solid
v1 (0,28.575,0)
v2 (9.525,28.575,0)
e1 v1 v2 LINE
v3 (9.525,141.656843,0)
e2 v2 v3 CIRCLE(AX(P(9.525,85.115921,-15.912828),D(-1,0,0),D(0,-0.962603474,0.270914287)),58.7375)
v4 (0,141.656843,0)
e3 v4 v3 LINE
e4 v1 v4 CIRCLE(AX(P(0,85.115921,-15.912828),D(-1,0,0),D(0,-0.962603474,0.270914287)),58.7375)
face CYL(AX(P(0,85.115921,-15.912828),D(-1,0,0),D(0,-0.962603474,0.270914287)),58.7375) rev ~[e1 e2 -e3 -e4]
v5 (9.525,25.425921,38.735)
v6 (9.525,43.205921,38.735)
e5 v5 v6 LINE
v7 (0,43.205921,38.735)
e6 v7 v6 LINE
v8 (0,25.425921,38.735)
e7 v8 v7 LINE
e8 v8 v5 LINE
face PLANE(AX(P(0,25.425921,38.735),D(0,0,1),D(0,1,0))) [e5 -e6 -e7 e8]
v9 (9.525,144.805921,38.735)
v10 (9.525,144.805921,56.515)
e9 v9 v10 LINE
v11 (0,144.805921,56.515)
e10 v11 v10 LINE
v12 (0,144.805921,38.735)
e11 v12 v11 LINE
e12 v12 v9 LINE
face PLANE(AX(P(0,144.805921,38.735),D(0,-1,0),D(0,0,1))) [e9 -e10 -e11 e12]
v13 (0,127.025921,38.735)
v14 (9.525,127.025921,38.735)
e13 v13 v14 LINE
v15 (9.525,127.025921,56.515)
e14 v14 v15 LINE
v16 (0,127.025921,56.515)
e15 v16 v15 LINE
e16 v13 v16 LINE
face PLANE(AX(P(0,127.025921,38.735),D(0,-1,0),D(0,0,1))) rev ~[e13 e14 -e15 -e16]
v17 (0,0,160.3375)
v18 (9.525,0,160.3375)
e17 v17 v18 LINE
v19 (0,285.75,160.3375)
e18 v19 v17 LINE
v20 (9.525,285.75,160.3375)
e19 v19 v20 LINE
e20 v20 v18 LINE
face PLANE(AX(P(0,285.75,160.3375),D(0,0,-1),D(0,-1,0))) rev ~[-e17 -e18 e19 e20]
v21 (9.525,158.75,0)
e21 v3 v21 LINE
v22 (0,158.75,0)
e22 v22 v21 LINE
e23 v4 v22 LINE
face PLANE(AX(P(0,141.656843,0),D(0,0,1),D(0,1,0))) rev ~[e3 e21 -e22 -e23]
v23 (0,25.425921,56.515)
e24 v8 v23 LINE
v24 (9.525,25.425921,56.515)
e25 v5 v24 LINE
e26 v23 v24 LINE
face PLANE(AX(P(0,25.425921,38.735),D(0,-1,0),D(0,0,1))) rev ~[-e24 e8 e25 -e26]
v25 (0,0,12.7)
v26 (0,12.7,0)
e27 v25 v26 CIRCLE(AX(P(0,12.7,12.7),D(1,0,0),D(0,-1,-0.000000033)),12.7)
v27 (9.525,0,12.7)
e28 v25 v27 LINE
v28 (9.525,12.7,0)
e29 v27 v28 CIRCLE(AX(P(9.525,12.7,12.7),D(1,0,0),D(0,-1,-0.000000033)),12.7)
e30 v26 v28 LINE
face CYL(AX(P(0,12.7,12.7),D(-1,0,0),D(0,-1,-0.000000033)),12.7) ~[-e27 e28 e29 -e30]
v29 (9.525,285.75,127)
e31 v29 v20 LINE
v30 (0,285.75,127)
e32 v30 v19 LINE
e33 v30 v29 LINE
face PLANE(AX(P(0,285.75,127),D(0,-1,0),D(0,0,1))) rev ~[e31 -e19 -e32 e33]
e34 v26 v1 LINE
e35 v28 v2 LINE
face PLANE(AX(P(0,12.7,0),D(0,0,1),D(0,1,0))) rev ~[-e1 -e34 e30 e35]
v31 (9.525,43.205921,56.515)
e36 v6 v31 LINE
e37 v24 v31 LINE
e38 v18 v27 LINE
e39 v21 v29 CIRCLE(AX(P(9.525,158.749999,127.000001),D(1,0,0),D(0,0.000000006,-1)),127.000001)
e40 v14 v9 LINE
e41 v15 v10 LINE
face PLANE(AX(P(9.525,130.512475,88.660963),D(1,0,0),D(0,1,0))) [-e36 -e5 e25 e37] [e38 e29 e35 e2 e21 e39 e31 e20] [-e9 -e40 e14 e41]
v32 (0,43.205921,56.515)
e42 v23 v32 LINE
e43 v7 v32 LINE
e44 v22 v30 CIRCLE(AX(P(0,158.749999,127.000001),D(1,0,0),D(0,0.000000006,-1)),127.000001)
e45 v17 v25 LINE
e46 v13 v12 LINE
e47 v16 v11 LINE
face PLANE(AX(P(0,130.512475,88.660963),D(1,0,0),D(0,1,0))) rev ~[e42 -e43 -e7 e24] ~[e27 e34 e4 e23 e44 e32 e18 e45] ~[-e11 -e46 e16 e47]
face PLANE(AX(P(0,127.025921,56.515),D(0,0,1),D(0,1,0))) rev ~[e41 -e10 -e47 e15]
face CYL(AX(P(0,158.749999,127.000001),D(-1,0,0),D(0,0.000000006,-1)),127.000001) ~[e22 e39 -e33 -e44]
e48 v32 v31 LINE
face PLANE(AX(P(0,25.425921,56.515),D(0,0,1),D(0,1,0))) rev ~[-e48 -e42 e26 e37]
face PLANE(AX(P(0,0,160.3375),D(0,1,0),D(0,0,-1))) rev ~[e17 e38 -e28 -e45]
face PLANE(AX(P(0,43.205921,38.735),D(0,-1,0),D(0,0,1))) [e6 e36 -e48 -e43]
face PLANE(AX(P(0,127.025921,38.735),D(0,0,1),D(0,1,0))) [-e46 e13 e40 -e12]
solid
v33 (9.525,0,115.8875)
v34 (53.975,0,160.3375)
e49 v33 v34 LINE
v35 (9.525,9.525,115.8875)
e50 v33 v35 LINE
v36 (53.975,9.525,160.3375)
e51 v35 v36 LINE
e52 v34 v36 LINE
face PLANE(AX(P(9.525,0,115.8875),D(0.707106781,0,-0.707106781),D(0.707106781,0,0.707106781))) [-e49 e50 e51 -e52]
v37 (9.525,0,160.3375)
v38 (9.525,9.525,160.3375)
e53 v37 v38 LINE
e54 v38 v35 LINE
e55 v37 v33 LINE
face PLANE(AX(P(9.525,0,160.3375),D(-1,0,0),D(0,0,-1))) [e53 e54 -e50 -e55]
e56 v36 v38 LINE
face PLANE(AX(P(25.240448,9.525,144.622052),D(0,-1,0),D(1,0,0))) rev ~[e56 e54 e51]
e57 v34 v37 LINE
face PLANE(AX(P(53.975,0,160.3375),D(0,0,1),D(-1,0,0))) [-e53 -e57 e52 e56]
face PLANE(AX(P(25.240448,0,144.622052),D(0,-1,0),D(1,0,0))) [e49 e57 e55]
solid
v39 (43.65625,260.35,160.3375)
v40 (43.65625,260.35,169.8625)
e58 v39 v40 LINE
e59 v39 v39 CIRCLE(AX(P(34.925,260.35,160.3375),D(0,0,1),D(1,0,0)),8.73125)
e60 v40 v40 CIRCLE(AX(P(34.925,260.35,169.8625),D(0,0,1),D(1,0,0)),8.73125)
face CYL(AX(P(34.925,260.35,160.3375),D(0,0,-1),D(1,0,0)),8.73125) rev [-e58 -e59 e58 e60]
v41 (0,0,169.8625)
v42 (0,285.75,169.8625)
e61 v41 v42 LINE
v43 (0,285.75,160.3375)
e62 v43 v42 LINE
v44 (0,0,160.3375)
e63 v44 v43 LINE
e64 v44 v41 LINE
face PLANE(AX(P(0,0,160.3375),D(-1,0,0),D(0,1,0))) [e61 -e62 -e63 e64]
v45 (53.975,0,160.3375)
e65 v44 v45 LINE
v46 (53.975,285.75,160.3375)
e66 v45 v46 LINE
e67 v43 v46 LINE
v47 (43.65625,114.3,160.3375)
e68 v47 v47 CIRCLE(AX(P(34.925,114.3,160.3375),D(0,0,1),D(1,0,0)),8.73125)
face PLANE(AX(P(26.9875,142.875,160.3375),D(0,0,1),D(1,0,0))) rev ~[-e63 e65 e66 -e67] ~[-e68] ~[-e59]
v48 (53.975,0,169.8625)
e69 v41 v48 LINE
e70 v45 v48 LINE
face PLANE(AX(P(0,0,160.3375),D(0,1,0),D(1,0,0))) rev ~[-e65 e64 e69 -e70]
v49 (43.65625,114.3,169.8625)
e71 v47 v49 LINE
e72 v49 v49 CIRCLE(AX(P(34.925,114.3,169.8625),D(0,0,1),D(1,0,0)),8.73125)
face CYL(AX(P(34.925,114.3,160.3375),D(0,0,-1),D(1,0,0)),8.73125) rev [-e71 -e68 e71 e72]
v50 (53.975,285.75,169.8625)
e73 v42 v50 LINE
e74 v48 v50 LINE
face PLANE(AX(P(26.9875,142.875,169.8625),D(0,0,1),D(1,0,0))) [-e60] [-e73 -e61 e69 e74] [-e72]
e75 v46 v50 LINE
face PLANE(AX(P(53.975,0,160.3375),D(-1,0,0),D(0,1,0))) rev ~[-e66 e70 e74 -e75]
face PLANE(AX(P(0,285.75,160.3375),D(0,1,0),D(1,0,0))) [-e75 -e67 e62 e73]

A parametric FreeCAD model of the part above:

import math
import FreeCAD as App
import Part
import Sketcher
Q = App.Units.Quantity


def add_polygon(sketch, points):
    """Adds a closed chain of lines whose ends are joined by coincident constraints."""
    first, n = sketch.GeometryCount, len(points)
    for a, b in zip(points, points[1:] + points[:1]):
        sketch.addGeometry(Part.LineSegment(App.Vector(*a, 0), App.Vector(*b, 0)), False)
    for i in range(n):
        sketch.addConstraint(Sketcher.Constraint("Coincident", first + i, 2, first + (i + 1) % n, 1))

doc = App.newDocument("Part")
body = doc.addObject("PartDesign::Body", "Body")

sketch1 = doc.addObject("Sketcher::SketchObject", "Sketch")
body.addObject(sketch1)
sketch1.AttachmentSupport = (doc.YZ_Plane, [""])
sketch1.MapMode = "FlatFace"
sketch1.addGeometry(Part.LineSegment(App.Vector(0, 160, 0), App.Vector(0, 13, 0)), False)
sketch1.addGeometry(Part.ArcOfCircle(Part.Circle(App.Vector(13, 13, 0), App.Vector(0, 0, 1), 13), math.radians(-180), math.radians(-90)), False)
sketch1.addGeometry(Part.LineSegment(App.Vector(13, 0, 0), App.Vector(29, 0, 0)), False)
sketch1.addGeometry(Part.ArcOfCircle(Part.Circle(App.Vector(85, -16, 0), App.Vector(0, 0, 1), 59), math.radians(16), math.radians(164)), False)
sketch1.addGeometry(Part.LineSegment(App.Vector(142, 0, 0), App.Vector(159, 0, 0)), False)
sketch1.addGeometry(Part.ArcOfCircle(Part.Circle(App.Vector(159, 127, 0), App.Vector(0, 0, 1), 127), math.radians(-90), math.radians(0)), False)
sketch1.addGeometry(Part.LineSegment(App.Vector(286, 127, 0), App.Vector(286, 160, 0)), False)
sketch1.addGeometry(Part.LineSegment(App.Vector(286, 160, 0), App.Vector(0, 160, 0)), False)
add_polygon(sketch1, [(43, 39), (25, 39), (25, 57), (43, 57)])
add_polygon(sketch1, [(145, 39), (127, 39), (127, 57), (145, 57)])
sketch1.addConstraint(Sketcher.Constraint("Tangent", 0, 2, 1, 1))
sketch1.addConstraint(Sketcher.Constraint("Tangent", 1, 2, 2, 1))
sketch1.addConstraint(Sketcher.Constraint("Coincident", 2, 2, 3, 2))
sketch1.addConstraint(Sketcher.Constraint("Coincident", 3, 1, 4, 1))
sketch1.addConstraint(Sketcher.Constraint("Tangent", 4, 2, 5, 1))
sketch1.addConstraint(Sketcher.Constraint("Tangent", 5, 2, 6, 1))
sketch1.addConstraint(Sketcher.Constraint("Coincident", 6, 2, 7, 1))
sketch1.addConstraint(Sketcher.Constraint("Coincident", 7, 2, 0, 1))
sketch1.addConstraint(Sketcher.Constraint("Vertical", 0))
sketch1.addConstraint(Sketcher.Constraint("Horizontal", 2))
sketch1.addConstraint(Sketcher.Constraint("Horizontal", 4))
sketch1.addConstraint(Sketcher.Constraint("Vertical", 6))
sketch1.addConstraint(Sketcher.Constraint("Horizontal", 7))
sketch1.addConstraint(Sketcher.Constraint("Horizontal", 8))
sketch1.addConstraint(Sketcher.Constraint("Vertical", 9))
sketch1.addConstraint(Sketcher.Constraint("Horizontal", 10))
sketch1.addConstraint(Sketcher.Constraint("Vertical", 11))
sketch1.addConstraint(Sketcher.Constraint("Horizontal", 12))
sketch1.addConstraint(Sketcher.Constraint("Vertical", 13))
sketch1.addConstraint(Sketcher.Constraint("Horizontal", 14))
sketch1.addConstraint(Sketcher.Constraint("Vertical", 15))
sketch1.addConstraint(Sketcher.Constraint("PointOnObject", 0, 2, -2))
sketch1.addConstraint(Sketcher.Constraint("PointOnObject", 1, 2, -1))
sketch1.addConstraint(Sketcher.Constraint("PointOnObject", 3, 1, -1))
sketch1.addConstraint(Sketcher.Constraint("Horizontal", 11, 2, 12, 2))
sketch1.addConstraint(Sketcher.Constraint("Horizontal", 10, 2, 13, 2))
sketch1.addConstraint(Sketcher.Constraint("Equal", 10, 12))
sketch1.addConstraint(Sketcher.Constraint("Equal", 14, 9))
sketch1.addConstraint(Sketcher.Constraint("Radius", 5, Q("5 in")))
sketch1.addConstraint(Sketcher.Constraint("Radius", 1, Q("0.5 in")))
sketch1.addConstraint(Sketcher.Constraint("DistanceX", 8, 2, 8, 1, Q("0.7 in")))
sketch1.addConstraint(Sketcher.Constraint("Radius", 3, Q("2.3125 in")))
sketch1.addConstraint(Sketcher.Constraint("DistanceX", 7, 2, 7, 1, Q("11.25 in")))
sketch1.addConstraint(Sketcher.Constraint("DistanceX", 11, 2, 12, 2, Q("3.3 in")))
sketch1.addConstraint(Sketcher.Constraint("DistanceX", 2, 1, 2, 2, Q("0.625 in")))
sketch1.addConstraint(Sketcher.Constraint("DistanceY", 0, 2, 0, 1, Q("5.8125 in")))
sketch1.addConstraint(Sketcher.Constraint("DistanceX", 8, 2, 3, 3, Q("2.35 in")))
sketch1.addConstraint(Sketcher.Constraint("DistanceY", -1, 1, 8, 2, Q("1.525 in")))
sketch1.addConstraint(Sketcher.Constraint("DistanceX", 4, 1, 4, 2, Q("17.093157 mm")))
pad1 = doc.addObject("PartDesign::Pad", "Pad")
body.addObject(pad1)
pad1.Profile = sketch1
pad1.Length = Q("0.375 in")
body2 = doc.addObject("PartDesign::Body", "Body001")

sketch2 = doc.addObject("Sketcher::SketchObject", "Sketch001")
body2.addObject(sketch2)
sketch2.AttachmentSupport = (doc.getObject("XY_Plane001"), [""])
sketch2.MapMode = "FlatFace"
sketch2.AttachmentOffset = App.Placement(App.Vector(0, 0, 6.3125 * 25.4), App.Rotation())
add_polygon(sketch2, [(0, 286), (0, 0), (54, 0), (54, 286)])
sketch2.addGeometry(Part.Circle(App.Vector(35, 114, 0), App.Vector(0, 0, 1), 9), False)
sketch2.addGeometry(Part.Circle(App.Vector(35, 260, 0), App.Vector(0, 0, 1), 9), False)
sketch2.addConstraint(Sketcher.Constraint("Vertical", 0))
sketch2.addConstraint(Sketcher.Constraint("Horizontal", 1))
sketch2.addConstraint(Sketcher.Constraint("Vertical", 2))
sketch2.addConstraint(Sketcher.Constraint("Horizontal", 3))
sketch2.addConstraint(Sketcher.Constraint("Coincident", 0, 2, -1, 1))
sketch2.addConstraint(Sketcher.Constraint("Equal", 4, 5))
sketch2.addConstraint(Sketcher.Constraint("Vertical", 4, 3, 5, 3))
sketch2.addConstraint(Sketcher.Constraint("Diameter", 4, Q("0.6875 in")))
sketch2.addConstraint(Sketcher.Constraint("DistanceY", 5, 3, 2, 2, Q("1 in")))
sketch2.addConstraint(Sketcher.Constraint("DistanceY", 0, 2, 0, 1, Q("11.25 in")))
sketch2.addConstraint(Sketcher.Constraint("DistanceY", -1, 1, 4, 3, Q("4.5 in")))
sketch2.addConstraint(Sketcher.Constraint("DistanceX", 1, 1, 1, 2, Q("2.125 in")))
sketch2.addConstraint(Sketcher.Constraint("DistanceX", 4, 3, 1, 2, Q("0.75 in")))
pad2 = doc.addObject("PartDesign::Pad", "Pad001")
body2.addObject(pad2)
pad2.Profile = sketch2
pad2.Length = Q("0.375 in")
body3 = doc.addObject("PartDesign::Body", "Body002")

sketch3 = doc.addObject("Sketcher::SketchObject", "Sketch002")
body3.addObject(sketch3)
sketch3.AttachmentSupport = (doc.getObject("XZ_Plane002"), [""])
sketch3.MapMode = "FlatFace"
add_polygon(sketch3, [(10, 160), (10, 116), (54, 160)])
sketch3.addConstraint(Sketcher.Constraint("Vertical", 0))
sketch3.addConstraint(Sketcher.Constraint("Horizontal", 2))
sketch3.addConstraint(Sketcher.Constraint("Equal", 2, 0))
sketch3.addConstraint(Sketcher.Constraint("DistanceX", 2, 2, 2, 1, Q("1.75 in")))
sketch3.addConstraint(Sketcher.Constraint("DistanceX", -1, 1, 0, 2, Q("0.375 in")))
sketch3.addConstraint(Sketcher.Constraint("DistanceY", -1, 1, 0, 2, Q("4.5625 in")))
pad3 = doc.addObject("PartDesign::Pad", "Pad002")
body3.addObject(pad3)
pad3.Profile = sketch3
pad3.Length = Q("0.375 in")
pad3.Reversed = True

doc.recompute()
